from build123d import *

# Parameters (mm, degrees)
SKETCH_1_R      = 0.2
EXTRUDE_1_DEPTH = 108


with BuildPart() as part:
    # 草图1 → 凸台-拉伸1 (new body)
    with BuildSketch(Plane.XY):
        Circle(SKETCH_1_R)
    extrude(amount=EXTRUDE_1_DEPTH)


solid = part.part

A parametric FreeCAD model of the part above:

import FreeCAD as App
import Part
import Sketcher

doc = App.newDocument("Part")
params = doc.addObject("Spreadsheet::Sheet", "Params")
for row, (alias, value) in enumerate([
    ("sketch1_diameter", "0.4 mm"),
    ("pad1_length", "108 mm"),
], start=1):
    params.set(f"A{row}", alias)
    params.set(f"B{row}", "=" + value)
    params.setAlias(f"B{row}", alias)

body = doc.addObject("PartDesign::Body", "Body")

sketch1 = doc.addObject("Sketcher::SketchObject", "Sketch")
body.addObject(sketch1)
sketch1.AttachmentSupport = (doc.XY_Plane, [""])
sketch1.MapMode = "FlatFace"
sketch1.addGeometry(Part.Circle(App.Vector(0, 0, 0), App.Vector(0, 0, 1), 0.2), False)
sketch1.addConstraint([
    Sketcher.Constraint("Coincident", 0, 3, -1, 1),
    Sketcher.Constraint("Diameter", 0, 0.4),
])
sketch1.setExpression("Constraints[1]", "Params.sketch1_diameter")
pad1 = doc.addObject("PartDesign::Pad", "Pad")
body.addObject(pad1)
pad1.Profile = sketch1
pad1.setExpression("Length", "Params.pad1_length")

doc.recompute()
